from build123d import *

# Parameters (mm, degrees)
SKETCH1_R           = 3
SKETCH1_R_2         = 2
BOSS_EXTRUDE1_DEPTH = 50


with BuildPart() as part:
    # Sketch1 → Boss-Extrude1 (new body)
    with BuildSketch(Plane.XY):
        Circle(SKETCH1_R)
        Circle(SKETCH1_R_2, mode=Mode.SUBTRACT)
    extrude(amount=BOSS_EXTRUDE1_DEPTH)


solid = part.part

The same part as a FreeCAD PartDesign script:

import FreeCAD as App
import Part
import Sketcher

V = App.Vector
Q = App.Units.Quantity

doc = App.newDocument("Part")
body = doc.addObject("PartDesign::Body", "Body")

# Sketch on XY plane
sketch1 = body.newObject("Sketcher::SketchObject", "Sketch")
sketch1.AttachmentSupport = (doc.getObject("XY_Plane"), [""])
sketch1.MapMode = "FlatFace"
sketch1.addGeometry(Part.Circle(V(0, 0, 0), V(0, 0, 1), 3), False)
sketch1.addGeometry(Part.Circle(V(0, 0, 0), V(0, 0, 1), 2), False)
sketch1.addConstraint(Sketcher.Constraint("Coincident", 0, 3, -1, 1))
sketch1.addConstraint(Sketcher.Constraint("Coincident", 1, 3, -1, 1))
sketch1.addConstraint(Sketcher.Constraint("Diameter", 0, Q("6 mm")))
sketch1.addConstraint(Sketcher.Constraint("Diameter", 1, Q("4 mm")))
pad1 = body.newObject("PartDesign::Pad", "Pad")
pad1.Profile = sketch1
pad1.Length = 50

doc.recompute()
